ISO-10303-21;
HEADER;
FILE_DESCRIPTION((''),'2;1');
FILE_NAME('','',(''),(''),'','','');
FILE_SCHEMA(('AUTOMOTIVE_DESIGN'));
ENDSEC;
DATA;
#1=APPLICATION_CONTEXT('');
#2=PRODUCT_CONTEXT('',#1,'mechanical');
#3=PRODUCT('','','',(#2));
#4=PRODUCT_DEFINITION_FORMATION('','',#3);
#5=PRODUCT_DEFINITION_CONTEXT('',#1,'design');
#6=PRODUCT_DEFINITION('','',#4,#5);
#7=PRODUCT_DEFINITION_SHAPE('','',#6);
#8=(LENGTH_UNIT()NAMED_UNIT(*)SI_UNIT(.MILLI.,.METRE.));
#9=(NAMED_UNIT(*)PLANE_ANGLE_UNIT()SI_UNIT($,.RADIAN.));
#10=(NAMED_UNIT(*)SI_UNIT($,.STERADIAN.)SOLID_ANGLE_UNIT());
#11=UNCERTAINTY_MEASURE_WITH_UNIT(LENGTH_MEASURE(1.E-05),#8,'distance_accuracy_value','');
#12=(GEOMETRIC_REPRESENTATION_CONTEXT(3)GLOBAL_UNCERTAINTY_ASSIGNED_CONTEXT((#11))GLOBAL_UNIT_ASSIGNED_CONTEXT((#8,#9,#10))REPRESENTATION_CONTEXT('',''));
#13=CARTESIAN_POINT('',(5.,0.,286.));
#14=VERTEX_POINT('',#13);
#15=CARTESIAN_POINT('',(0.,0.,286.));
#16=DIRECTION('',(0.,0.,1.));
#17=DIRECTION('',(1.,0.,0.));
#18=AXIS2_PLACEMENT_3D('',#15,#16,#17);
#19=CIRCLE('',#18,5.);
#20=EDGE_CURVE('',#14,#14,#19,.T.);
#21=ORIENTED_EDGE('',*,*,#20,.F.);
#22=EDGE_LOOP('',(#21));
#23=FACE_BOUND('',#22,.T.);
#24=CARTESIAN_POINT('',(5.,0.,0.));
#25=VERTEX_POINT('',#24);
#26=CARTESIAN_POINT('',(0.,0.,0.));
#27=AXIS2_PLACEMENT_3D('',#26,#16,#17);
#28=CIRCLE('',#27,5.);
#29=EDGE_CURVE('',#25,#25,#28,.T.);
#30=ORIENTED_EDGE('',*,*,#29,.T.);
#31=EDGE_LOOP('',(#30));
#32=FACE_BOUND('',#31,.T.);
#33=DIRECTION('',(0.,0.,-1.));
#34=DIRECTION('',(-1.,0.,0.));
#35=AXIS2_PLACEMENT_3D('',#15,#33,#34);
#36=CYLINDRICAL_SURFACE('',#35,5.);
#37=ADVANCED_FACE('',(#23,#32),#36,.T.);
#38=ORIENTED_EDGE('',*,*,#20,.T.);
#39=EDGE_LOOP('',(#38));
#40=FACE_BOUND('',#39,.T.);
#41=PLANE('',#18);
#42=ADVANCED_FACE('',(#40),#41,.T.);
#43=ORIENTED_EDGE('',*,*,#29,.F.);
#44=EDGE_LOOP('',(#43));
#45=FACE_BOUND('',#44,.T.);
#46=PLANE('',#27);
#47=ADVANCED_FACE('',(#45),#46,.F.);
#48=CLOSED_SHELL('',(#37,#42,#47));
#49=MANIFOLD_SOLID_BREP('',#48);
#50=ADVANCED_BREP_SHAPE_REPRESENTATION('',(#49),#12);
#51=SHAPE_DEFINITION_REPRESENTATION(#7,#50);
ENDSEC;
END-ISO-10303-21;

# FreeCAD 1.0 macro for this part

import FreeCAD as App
import Part
import Sketcher

doc = App.newDocument("Part")
params = doc.addObject("Spreadsheet::Sheet", "Params")
for row, (alias, value) in enumerate([
    ("sketch1_diameter", "10 mm"),
    ("pad1_length", "286 mm"),
], start=1):
    params.set(f"A{row}", alias)
    params.set(f"B{row}", "=" + value)
    params.setAlias(f"B{row}", alias)

body = doc.addObject("PartDesign::Body", "Body")

sketch1 = doc.addObject("Sketcher::SketchObject", "Sketch")
body.addObject(sketch1)
sketch1.AttachmentSupport = (doc.XY_Plane, [""])
sketch1.MapMode = "FlatFace"
sketch1.addGeometry(Part.Circle(App.Vector(0, 0, 0), App.Vector(0, 0, 1), 5), False)
sketch1.addConstraint(Sketcher.Constraint("Coincident", 0, 3, -1, 1))
sketch1.addConstraint(Sketcher.Constraint("Diameter", 0, 10.0))
sketch1.setExpression("Constraints[1]", "Params.sketch1_diameter")
pad1 = doc.addObject("PartDesign::Pad", "Pad")
body.addObject(pad1)
pad1.Profile = sketch1
pad1.setExpression("Length", "Params.pad1_length")

doc.recompute()
